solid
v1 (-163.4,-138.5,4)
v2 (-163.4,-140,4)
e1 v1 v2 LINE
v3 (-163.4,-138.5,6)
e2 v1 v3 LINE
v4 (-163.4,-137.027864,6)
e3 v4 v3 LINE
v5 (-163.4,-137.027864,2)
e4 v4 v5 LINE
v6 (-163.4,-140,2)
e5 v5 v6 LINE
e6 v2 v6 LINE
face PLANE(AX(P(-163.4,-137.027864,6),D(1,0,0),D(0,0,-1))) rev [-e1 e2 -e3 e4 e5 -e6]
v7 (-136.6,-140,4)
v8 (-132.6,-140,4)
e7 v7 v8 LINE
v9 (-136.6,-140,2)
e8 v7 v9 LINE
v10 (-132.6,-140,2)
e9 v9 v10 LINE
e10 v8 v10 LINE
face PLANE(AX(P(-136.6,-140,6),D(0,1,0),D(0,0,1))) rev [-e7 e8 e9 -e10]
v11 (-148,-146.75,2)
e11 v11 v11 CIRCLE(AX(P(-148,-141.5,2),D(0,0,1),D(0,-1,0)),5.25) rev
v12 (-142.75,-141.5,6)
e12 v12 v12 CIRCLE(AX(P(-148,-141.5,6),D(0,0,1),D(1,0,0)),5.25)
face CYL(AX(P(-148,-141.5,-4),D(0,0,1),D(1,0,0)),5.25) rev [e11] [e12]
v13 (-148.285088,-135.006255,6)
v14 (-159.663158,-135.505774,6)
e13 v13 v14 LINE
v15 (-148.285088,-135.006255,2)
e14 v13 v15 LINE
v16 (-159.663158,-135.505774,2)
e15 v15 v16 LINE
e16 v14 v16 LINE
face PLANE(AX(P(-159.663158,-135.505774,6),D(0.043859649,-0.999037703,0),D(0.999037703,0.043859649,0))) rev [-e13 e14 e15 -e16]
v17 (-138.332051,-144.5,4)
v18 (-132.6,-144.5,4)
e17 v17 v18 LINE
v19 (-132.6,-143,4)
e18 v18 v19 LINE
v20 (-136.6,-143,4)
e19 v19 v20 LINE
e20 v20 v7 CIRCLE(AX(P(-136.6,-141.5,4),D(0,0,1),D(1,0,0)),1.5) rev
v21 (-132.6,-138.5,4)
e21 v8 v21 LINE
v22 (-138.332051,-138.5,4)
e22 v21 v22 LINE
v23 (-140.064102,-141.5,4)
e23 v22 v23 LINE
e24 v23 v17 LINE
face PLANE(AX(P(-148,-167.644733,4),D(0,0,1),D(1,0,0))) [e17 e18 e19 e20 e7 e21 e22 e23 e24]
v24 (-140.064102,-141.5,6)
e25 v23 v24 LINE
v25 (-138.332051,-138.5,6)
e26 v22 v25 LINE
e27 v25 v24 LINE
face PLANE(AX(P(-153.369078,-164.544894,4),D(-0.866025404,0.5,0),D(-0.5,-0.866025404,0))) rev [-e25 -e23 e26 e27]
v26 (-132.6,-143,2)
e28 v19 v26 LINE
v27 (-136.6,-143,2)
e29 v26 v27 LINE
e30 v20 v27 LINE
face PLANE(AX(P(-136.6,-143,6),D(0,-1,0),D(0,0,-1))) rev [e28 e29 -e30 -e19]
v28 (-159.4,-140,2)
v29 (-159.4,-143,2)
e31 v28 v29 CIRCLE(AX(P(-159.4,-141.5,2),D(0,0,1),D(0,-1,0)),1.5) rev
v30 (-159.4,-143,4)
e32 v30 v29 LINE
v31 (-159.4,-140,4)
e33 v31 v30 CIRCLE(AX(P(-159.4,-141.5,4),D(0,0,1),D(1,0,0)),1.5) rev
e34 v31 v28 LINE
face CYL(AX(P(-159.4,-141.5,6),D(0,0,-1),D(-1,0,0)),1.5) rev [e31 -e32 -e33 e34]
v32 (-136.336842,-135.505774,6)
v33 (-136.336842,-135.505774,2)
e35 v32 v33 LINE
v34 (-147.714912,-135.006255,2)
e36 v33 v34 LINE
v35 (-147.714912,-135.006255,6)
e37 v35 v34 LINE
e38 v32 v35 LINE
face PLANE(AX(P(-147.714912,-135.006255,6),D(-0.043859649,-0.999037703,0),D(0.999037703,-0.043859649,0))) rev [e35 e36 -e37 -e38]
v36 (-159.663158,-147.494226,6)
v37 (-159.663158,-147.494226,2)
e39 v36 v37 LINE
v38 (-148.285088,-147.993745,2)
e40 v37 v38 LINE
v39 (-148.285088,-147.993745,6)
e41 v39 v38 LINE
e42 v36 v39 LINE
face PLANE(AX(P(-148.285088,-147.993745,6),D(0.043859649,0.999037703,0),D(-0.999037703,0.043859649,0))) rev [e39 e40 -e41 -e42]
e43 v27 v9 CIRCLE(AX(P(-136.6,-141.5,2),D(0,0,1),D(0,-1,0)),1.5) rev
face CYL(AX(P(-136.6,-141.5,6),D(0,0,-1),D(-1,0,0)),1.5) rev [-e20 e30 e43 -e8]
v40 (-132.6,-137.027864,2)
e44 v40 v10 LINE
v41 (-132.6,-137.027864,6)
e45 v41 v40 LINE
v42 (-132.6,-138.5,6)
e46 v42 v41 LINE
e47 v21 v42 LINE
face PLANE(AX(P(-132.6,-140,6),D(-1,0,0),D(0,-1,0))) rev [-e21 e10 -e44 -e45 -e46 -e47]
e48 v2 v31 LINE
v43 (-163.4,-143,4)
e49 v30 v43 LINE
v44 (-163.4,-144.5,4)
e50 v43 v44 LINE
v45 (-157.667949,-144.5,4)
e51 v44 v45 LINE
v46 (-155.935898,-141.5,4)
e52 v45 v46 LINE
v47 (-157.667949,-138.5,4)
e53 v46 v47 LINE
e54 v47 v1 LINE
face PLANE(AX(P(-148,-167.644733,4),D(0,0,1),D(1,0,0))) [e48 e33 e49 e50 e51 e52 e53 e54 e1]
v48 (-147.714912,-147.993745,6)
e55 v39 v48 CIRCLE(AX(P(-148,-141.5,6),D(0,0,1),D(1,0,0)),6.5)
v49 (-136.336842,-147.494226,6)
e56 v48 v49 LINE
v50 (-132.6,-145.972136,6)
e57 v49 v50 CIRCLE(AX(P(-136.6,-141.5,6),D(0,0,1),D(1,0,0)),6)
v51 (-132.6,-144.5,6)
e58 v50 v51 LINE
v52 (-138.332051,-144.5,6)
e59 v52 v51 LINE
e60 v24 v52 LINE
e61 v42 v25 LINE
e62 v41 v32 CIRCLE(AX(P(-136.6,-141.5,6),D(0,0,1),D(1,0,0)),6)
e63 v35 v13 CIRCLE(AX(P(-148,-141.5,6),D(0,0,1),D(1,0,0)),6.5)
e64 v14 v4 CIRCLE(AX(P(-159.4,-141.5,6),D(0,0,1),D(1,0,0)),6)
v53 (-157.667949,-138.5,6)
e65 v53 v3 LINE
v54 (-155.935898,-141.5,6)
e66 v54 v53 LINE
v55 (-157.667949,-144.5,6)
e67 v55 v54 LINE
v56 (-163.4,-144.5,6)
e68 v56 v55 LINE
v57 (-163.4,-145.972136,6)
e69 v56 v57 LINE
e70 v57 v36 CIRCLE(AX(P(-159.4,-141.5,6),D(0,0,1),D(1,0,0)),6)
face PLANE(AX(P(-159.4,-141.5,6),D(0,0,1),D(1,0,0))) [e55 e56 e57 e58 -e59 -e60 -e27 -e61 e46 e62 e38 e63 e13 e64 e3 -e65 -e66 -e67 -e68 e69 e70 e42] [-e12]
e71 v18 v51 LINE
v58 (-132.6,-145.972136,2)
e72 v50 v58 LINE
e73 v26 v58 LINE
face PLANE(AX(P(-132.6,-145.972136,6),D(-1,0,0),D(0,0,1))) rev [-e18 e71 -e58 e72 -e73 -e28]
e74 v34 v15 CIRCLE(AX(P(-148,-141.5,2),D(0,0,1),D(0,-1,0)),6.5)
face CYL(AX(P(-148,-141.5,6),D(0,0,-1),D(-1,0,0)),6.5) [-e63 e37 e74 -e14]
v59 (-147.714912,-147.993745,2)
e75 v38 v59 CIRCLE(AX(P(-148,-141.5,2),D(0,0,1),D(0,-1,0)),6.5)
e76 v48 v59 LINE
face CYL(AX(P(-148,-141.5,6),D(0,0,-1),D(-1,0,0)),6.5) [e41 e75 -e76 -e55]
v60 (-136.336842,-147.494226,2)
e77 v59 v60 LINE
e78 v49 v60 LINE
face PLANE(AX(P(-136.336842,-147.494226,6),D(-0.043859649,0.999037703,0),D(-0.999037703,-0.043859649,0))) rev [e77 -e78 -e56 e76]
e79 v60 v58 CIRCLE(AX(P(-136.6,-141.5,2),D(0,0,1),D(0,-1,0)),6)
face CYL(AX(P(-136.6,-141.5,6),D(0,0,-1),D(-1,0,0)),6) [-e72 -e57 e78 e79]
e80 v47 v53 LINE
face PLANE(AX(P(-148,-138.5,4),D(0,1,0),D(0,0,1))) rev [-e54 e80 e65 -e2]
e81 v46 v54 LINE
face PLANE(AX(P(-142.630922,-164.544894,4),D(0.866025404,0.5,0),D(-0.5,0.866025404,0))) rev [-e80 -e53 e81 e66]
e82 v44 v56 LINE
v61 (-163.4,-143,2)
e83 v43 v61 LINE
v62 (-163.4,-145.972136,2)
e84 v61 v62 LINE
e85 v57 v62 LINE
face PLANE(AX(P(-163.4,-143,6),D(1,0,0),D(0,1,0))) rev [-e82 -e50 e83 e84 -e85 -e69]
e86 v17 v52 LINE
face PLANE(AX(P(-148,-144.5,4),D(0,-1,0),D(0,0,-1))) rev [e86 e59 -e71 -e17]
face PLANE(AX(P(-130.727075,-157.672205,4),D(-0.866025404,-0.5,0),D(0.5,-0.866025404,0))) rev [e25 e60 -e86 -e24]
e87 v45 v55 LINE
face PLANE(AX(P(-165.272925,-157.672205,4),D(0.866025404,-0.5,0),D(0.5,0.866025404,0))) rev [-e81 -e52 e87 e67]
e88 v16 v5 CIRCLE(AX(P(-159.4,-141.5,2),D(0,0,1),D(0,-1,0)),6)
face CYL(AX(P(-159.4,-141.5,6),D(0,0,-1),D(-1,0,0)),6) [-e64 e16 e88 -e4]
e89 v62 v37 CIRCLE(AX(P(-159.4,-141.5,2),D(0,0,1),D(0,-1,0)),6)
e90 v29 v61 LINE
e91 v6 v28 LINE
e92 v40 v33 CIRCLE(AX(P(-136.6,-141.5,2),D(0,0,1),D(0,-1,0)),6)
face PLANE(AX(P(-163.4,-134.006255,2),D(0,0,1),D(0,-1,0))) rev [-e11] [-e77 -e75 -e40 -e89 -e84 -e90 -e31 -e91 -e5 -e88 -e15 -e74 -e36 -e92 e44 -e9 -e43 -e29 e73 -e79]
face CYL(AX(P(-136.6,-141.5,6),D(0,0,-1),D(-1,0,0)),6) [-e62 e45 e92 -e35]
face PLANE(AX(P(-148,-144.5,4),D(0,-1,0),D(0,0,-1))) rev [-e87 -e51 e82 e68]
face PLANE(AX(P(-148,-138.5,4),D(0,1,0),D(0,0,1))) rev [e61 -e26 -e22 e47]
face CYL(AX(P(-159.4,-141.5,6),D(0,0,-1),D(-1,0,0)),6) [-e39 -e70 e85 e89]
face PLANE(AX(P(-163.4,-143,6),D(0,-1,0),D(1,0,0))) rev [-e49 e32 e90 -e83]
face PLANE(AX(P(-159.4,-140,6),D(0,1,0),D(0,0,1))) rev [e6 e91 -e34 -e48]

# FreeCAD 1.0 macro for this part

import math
import FreeCAD as App
import Part
import Sketcher
from FreeCAD import Vector
Q = App.Units.Quantity


def add_polygon(sketch, points):
    """Adds a closed chain of lines whose ends are joined by coincident constraints."""
    first, n = sketch.GeometryCount, len(points)
    for a, b in zip(points, points[1:] + points[:1]):
        sketch.addGeometry(Part.LineSegment(App.Vector(*a, 0), App.Vector(*b, 0)), False)
    for i in range(n):
        sketch.addConstraint(Sketcher.Constraint("Coincident", first + i, 2, first + (i + 1) % n, 1))

doc = App.newDocument("Part")
body = doc.addObject("PartDesign::Body", "Body")

# Sketch on XY plane
sketch1 = body.newObject("Sketcher::SketchObject", "Sketch")
sketch1.AttachmentSupport = (doc.getObject("XY_Plane"), [""])
sketch1.MapMode = "FlatFace"
sketch1.addGeometry([
    Part.LineSegment(Vector(-147.714912, -147.993745, 0), Vector(-136.336842, -147.494226, 0)),  # 0
    Part.ArcOfCircle(Part.Circle(Vector(-136.6, -141.5, 0), Vector(0, 0, 1), 6), math.radians(-87.486221), math.radians(-48.189685)),  # 1
    Part.LineSegment(Vector(-132.6, -145.972136, 0), Vector(-132.6, -143, 0)),  # 2
    Part.LineSegment(Vector(-132.6, -143, 0), Vector(-136.6, -143, 0)),  # 3
    Part.ArcOfCircle(Part.Circle(Vector(-136.6, -141.5, 0), Vector(0, 0, 1), 1.5), math.radians(90), math.radians(270)),  # 4
    Part.LineSegment(Vector(-136.6, -140, 0), Vector(-132.6, -140, 0)),  # 5
    Part.LineSegment(Vector(-132.6, -140, 0), Vector(-132.6, -137.027864, 0)),  # 6
    Part.ArcOfCircle(Part.Circle(Vector(-136.6, -141.5, 0), Vector(0, 0, 1), 6), math.radians(48.189685), math.radians(87.486221)),  # 7
    Part.LineSegment(Vector(-136.336842, -135.505774, 0), Vector(-147.714912, -135.006255, 0)),  # 8
    Part.ArcOfCircle(Part.Circle(Vector(-148, -141.5, 0), Vector(0, 0, 1), 6.5), math.radians(87.486221), math.radians(92.513779)),  # 9
    Part.LineSegment(Vector(-148.285088, -135.006255, 0), Vector(-159.663158, -135.505774, 0)),  # 10
    Part.ArcOfCircle(Part.Circle(Vector(-159.4, -141.5, 0), Vector(0, 0, 1), 6), math.radians(92.513779), math.radians(131.810315)),  # 11
    Part.LineSegment(Vector(-163.4, -137.027864, 0), Vector(-163.4, -140, 0)),  # 12
    Part.LineSegment(Vector(-163.4, -140, 0), Vector(-159.4, -140, 0)),  # 13
    Part.ArcOfCircle(Part.Circle(Vector(-159.4, -141.5, 0), Vector(0, 0, 1), 1.5), math.radians(-90), math.radians(90)),  # 14
    Part.LineSegment(Vector(-159.4, -143, 0), Vector(-163.4, -143, 0)),  # 15
    Part.LineSegment(Vector(-163.4, -143, 0), Vector(-163.4, -145.972136, 0)),  # 16
    Part.ArcOfCircle(Part.Circle(Vector(-159.4, -141.5, 0), Vector(0, 0, 1), 6), math.radians(-131.810315), math.radians(-92.513779)),  # 17
    Part.LineSegment(Vector(-159.663158, -147.494226, 0), Vector(-148.285088, -147.993745, 0)),  # 18
    Part.ArcOfCircle(Part.Circle(Vector(-148, -141.5, 0), Vector(0, 0, 1), 6.5), math.radians(-92.513779), math.radians(-87.486221)),  # 19
], False)
sketch1.addConstraint([
    Sketcher.Constraint("Tangent", 0, 2, 1, 1),
    Sketcher.Constraint("Coincident", 1, 2, 2, 1),
    Sketcher.Constraint("Coincident", 2, 2, 3, 1),
    Sketcher.Constraint("Tangent", 3, 2, 4, 2),
    Sketcher.Constraint("Tangent", 4, 1, 5, 1),
    Sketcher.Constraint("Coincident", 5, 2, 6, 1),
    Sketcher.Constraint("Coincident", 6, 2, 7, 1),
    Sketcher.Constraint("Tangent", 7, 2, 8, 1),
    Sketcher.Constraint("Tangent", 8, 2, 9, 1),
    Sketcher.Constraint("Tangent", 9, 2, 10, 1),
    Sketcher.Constraint("Tangent", 10, 2, 11, 1),
    Sketcher.Constraint("Coincident", 11, 2, 12, 1),
    Sketcher.Constraint("Coincident", 12, 2, 13, 1),
    Sketcher.Constraint("Tangent", 13, 2, 14, 2),
    Sketcher.Constraint("Tangent", 14, 1, 15, 1),
    Sketcher.Constraint("Coincident", 15, 2, 16, 1),
    Sketcher.Constraint("Coincident", 16, 2, 17, 1),
    Sketcher.Constraint("Tangent", 17, 2, 18, 1),
    Sketcher.Constraint("Tangent", 18, 2, 19, 1),
    Sketcher.Constraint("Tangent", 19, 2, 0, 1),
    Sketcher.Constraint("Vertical", 2),
    Sketcher.Constraint("Horizontal", 3),
    Sketcher.Constraint("Horizontal", 5),
    Sketcher.Constraint("Vertical", 6),
    Sketcher.Constraint("Vertical", 12),
    Sketcher.Constraint("Horizontal", 13),
    Sketcher.Constraint("Horizontal", 15),
    Sketcher.Constraint("Vertical", 16),
    Sketcher.Constraint("Coincident", 4, 3, 1, 3),
    Sketcher.Constraint("Coincident", 7, 3, 1, 3),
    Sketcher.Constraint("Coincident", 14, 3, 11, 3),
    Sketcher.Constraint("Coincident", 17, 3, 11, 3),
    Sketcher.Constraint("Coincident", 19, 3, 9, 3),
    Sketcher.Constraint("Equal", 1, 7),
    Sketcher.Constraint("Equal", 7, 11),
    Sketcher.Constraint("Equal", 4, 14),
    Sketcher.Constraint("Equal", 11, 17),
    Sketcher.Constraint("Equal", 9, 19),
    Sketcher.Constraint("Parallel", 0, 10),
    Sketcher.Constraint("Parallel", 8, 18),
    Sketcher.Constraint("Horizontal", 7, 3, 9, 3),
    Sketcher.Constraint("Horizontal", 6, 2, 11, 2),
    Sketcher.Constraint("Horizontal", 1, 2, 16, 2),
    Sketcher.Constraint("Vertical", 2, 2, 5, 2),
    Sketcher.Constraint("Radius", 1, Q("6 mm")),
    Sketcher.Constraint("Radius", 4, Q("1.5 mm")),
    Sketcher.Constraint("Radius", 9, Q("6.5 mm")),
    Sketcher.Constraint("DistanceX", 3, 2, 3, 1, Q("4 mm")),
    Sketcher.Constraint("DistanceX", 9, 3, -1, 1, Q("148 mm")),
    Sketcher.Constraint("DistanceY", 2, 2, -1, 1, Q("143 mm")),
    Sketcher.Constraint("DistanceX", 1, 3, -1, 1, Q("136.6 mm")),
])
pad1 = body.newObject("PartDesign::Pad", "Pad")
pad1.Profile = sketch1
pad1.Length = 6

# Sketch on XY plane
sketch2 = body.newObject("Sketcher::SketchObject", "Sketch001")
sketch2.AttachmentSupport = (doc.getObject("XY_Plane"), [""])
sketch2.MapMode = "FlatFace"
sketch2.AttachmentOffset = App.Placement(Vector(0, 0, 6), App.Rotation())
sketch2.addGeometry(Part.Circle(Vector(-148, -141.5, 0), Vector(0, 0, 1), 5.25), False)
sketch2.addConstraint([
    Sketcher.Constraint("Diameter", 0, Q("10.5 mm")),
    Sketcher.Constraint("DistanceX", 0, 3, -1, 1, Q("148 mm")),
    Sketcher.Constraint("DistanceY", 0, 3, -1, 1, Q("141.5 mm")),
])
pocket1 = body.newObject("PartDesign::Pocket", "Pocket")
pocket1.Profile = sketch2
pocket1.Length = 10

# Sketch on XY plane
sketch3 = body.newObject("Sketcher::SketchObject", "Sketch002")
sketch3.AttachmentSupport = (doc.getObject("XY_Plane"), [""])
sketch3.MapMode = "FlatFace"
sketch3.AttachmentOffset = App.Placement(Vector(0, 0, 6), App.Rotation())
sketch3.addGeometry([
    Part.LineSegment(Vector(-132.6, -138.5, 0), Vector(-138.332051, -138.5, 0)),  # 0
    Part.LineSegment(Vector(-138.332051, -138.5, 0), Vector(-140.064102, -141.5, 0)),  # 1
    Part.LineSegment(Vector(-140.064102, -141.5, 0), Vector(-138.332051, -144.5, 0)),  # 2
    Part.LineSegment(Vector(-138.332051, -144.5, 0), Vector(-132.6, -144.5, 0)),  # 3
    Part.LineSegment(Vector(-132.6, -144.5, 0), Vector(-132.6, -143, 0)),  # 4
    Part.LineSegment(Vector(-132.6, -143, 0), Vector(-136.6, -143, 0)),  # 5
    Part.ArcOfCircle(Part.Circle(Vector(-136.6, -141.5, 0), Vector(0, 0, 1), 1.5), math.radians(90), math.radians(270)),  # 6
    Part.LineSegment(Vector(-136.6, -140, 0), Vector(-132.6, -140, 0)),  # 7
    Part.LineSegment(Vector(-132.6, -140, 0), Vector(-132.6, -138.5, 0)),  # 8
    Part.LineSegment(Vector(-157.667949, -138.5, 0), Vector(-163.4, -138.5, 0)),  # 9
    Part.LineSegment(Vector(-163.4, -138.5, 0), Vector(-163.4, -140, 0)),  # 10
    Part.LineSegment(Vector(-163.4, -140, 0), Vector(-159.4, -140, 0)),  # 11
    Part.ArcOfCircle(Part.Circle(Vector(-159.4, -141.5, 0), Vector(0, 0, 1), 1.5), math.radians(-90), math.radians(90)),  # 12
    Part.LineSegment(Vector(-159.4, -143, 0), Vector(-163.4, -143, 0)),  # 13
    Part.LineSegment(Vector(-163.4, -143, 0), Vector(-163.4, -144.5, 0)),  # 14
    Part.LineSegment(Vector(-163.4, -144.5, 0), Vector(-157.667949, -144.5, 0)),  # 15
    Part.LineSegment(Vector(-157.667949, -144.5, 0), Vector(-155.935898, -141.5, 0)),  # 16
    Part.LineSegment(Vector(-155.935898, -141.5, 0), Vector(-157.667949, -138.5, 0)),  # 17
], False)
sketch3.addConstraint([
    Sketcher.Constraint("Coincident", 0, 2, 1, 1),
    Sketcher.Constraint("Coincident", 1, 2, 2, 1),
    Sketcher.Constraint("Coincident", 2, 2, 3, 1),
    Sketcher.Constraint("Coincident", 3, 2, 4, 1),
    Sketcher.Constraint("Coincident", 4, 2, 5, 1),
    Sketcher.Constraint("Tangent", 5, 2, 6, 2),
    Sketcher.Constraint("Tangent", 6, 1, 7, 1),
    Sketcher.Constraint("Coincident", 7, 2, 8, 1),
    Sketcher.Constraint("Coincident", 8, 2, 0, 1),
    Sketcher.Constraint("Coincident", 9, 2, 10, 1),
    Sketcher.Constraint("Coincident", 10, 2, 11, 1),
    Sketcher.Constraint("Tangent", 11, 2, 12, 2),
    Sketcher.Constraint("Tangent", 12, 1, 13, 1),
    Sketcher.Constraint("Coincident", 13, 2, 14, 1),
    Sketcher.Constraint("Coincident", 14, 2, 15, 1),
    Sketcher.Constraint("Coincident", 15, 2, 16, 1),
    Sketcher.Constraint("Coincident", 16, 2, 17, 1),
    Sketcher.Constraint("Coincident", 17, 2, 9, 1),
    Sketcher.Constraint("Horizontal", 0),
    Sketcher.Constraint("Horizontal", 3),
    Sketcher.Constraint("Vertical", 4),
    Sketcher.Constraint("Horizontal", 5),
    Sketcher.Constraint("Horizontal", 7),
    Sketcher.Constraint("Vertical", 8),
    Sketcher.Constraint("Horizontal", 9),
    Sketcher.Constraint("Vertical", 10),
    Sketcher.Constraint("Horizontal", 11),
    Sketcher.Constraint("Horizontal", 13),
    Sketcher.Constraint("Vertical", 14),
    Sketcher.Constraint("Horizontal", 15),
    Sketcher.Constraint("Equal", 6, 12),
    Sketcher.Constraint("Parallel", 1, 16),
    Sketcher.Constraint("Parallel", 2, 17),
    Sketcher.Constraint("Horizontal", 6, 3, 12, 3),
    Sketcher.Constraint("Horizontal", 12, 3, 1, 2),
    Sketcher.Constraint("Horizontal", 8, 2, 9, 2),
    Sketcher.Constraint("Horizontal", 3, 2, 14, 2),
    Sketcher.Constraint("Horizontal", 1, 2, 16, 2),
    Sketcher.Constraint("Vertical", 0, 2, 2, 2),
    Sketcher.Constraint("Vertical", 4, 2, 7, 2),
    Sketcher.Constraint("Vertical", 10, 2, 13, 2),
    Sketcher.Constraint("Vertical", 15, 2, 17, 2),
    Sketcher.Constraint("Equal", 3, 9),
    Sketcher.Constraint("Equal", 7, 11),
    Sketcher.Constraint("Radius", 6, Q("1.5 mm")),
    Sketcher.Constraint("DistanceX", 5, 2, 5, 1, Q("4 mm")),
    Sketcher.Constraint("Angle", 1, Q("-120 deg")),
    Sketcher.Constraint("DistanceY", 4, 1, 4, 2, Q("1.5 mm")),
    Sketcher.Constraint("DistanceY", 4, 2, -1, 1, Q("143 mm")),
    Sketcher.Constraint("DistanceX", 6, 3, -1, 1, Q("136.6 mm")),
    Sketcher.Constraint("DistanceX", 12, 3, -1, 1, Q("159.4 mm")),
    Sketcher.Constraint("DistanceX", 0, 2, 0, 1, Q("5.732051 mm")),
])
pocket2 = body.newObject("PartDesign::Pocket", "Pocket001")
pocket2.Profile = sketch3
pocket2.Length = 2

# Sketch on YZ plane
sketch4 = body.newObject("Sketcher::SketchObject", "Sketch003")
sketch4.AttachmentSupport = (doc.getObject("YZ_Plane"), [""])
sketch4.MapMode = "FlatFace"
sketch4.AttachmentOffset = App.Placement(Vector(0, 0, -132.6), App.Rotation())
add_polygon(sketch4, [(-134.006255, 2), (-148.993745, 2), (-148.993745, 0), (-134.006255, 0)])  # lines 0-3
sketch4.addConstraint([
    Sketcher.Constraint("Horizontal", 0),
    Sketcher.Constraint("Vertical", 1),
    Sketcher.Constraint("Horizontal", 2),
    Sketcher.Constraint("Vertical", 3),
    Sketcher.Constraint("PointOnObject", 1, 2, -1),
    Sketcher.Constraint("DistanceY", 1, 2, 1, 1, Q("2 mm")),
    Sketcher.Constraint("DistanceX", 0, 2, 0, 1, Q("14.98749 mm")),
    Sketcher.Constraint("DistanceX", 0, 2, -1, 1, Q("148.993745 mm")),
])
pocket3 = body.newObject("PartDesign::Pocket", "Pocket002")
pocket3.Profile = sketch4
pocket3.Type = "ThroughAll"

doc.recompute()
